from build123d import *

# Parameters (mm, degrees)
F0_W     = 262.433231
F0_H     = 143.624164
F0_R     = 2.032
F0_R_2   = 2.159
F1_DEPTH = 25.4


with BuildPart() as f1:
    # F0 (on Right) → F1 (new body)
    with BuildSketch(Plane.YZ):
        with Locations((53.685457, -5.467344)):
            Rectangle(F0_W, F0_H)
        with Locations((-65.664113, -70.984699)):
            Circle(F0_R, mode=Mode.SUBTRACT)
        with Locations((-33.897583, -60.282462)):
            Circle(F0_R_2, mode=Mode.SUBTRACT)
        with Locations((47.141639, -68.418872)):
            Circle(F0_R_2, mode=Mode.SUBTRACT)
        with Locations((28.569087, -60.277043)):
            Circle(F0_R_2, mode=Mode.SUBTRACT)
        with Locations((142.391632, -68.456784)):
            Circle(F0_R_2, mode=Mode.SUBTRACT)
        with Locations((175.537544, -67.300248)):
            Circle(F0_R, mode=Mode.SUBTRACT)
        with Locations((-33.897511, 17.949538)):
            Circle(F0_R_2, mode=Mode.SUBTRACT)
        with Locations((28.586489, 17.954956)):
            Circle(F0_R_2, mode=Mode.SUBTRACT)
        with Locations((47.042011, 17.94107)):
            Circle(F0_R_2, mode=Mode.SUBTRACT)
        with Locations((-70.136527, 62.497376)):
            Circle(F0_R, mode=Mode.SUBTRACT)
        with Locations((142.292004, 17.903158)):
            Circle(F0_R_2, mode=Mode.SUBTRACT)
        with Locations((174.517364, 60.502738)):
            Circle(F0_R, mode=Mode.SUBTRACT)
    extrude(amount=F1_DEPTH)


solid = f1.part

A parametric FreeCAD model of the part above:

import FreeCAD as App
import Part
import Sketcher
Q = App.Units.Quantity

doc = App.newDocument("Part")
body = doc.addObject("PartDesign::Body", "Body")

# Sketch on YZ plane
sketch1 = body.newObject("Sketcher::SketchObject", "Sketch")
sketch1.AttachmentSupport = (doc.getObject("YZ_Plane"), [""])
sketch1.MapMode = "FlatFace"
sketch1.addGeometry(Part.LineSegment(App.Vector(-77.5, 66.3, 0), App.Vector(-77.5, -77.3, 0)), False)
sketch1.addGeometry(Part.LineSegment(App.Vector(-77.5, -77.3, 0), App.Vector(184.9, -77.3, 0)), False)
sketch1.addGeometry(Part.LineSegment(App.Vector(184.9, -77.3, 0), App.Vector(184.9, 66.3, 0)), False)
sketch1.addGeometry(Part.LineSegment(App.Vector(184.9, 66.3, 0), App.Vector(-77.5, 66.3, 0)), False)
sketch1.addGeometry(Part.Circle(App.Vector(-65.7, -71, 0), App.Vector(0, 0, 1), 2), False)
sketch1.addGeometry(Part.Circle(App.Vector(-33.9, -60.3, 0), App.Vector(0, 0, 1), 2.2), False)
sketch1.addGeometry(Part.Circle(App.Vector(47.1, -68.4, 0), App.Vector(0, 0, 1), 2.2), False)
sketch1.addGeometry(Part.Circle(App.Vector(28.6, -60.3, 0), App.Vector(0, 0, 1), 2.2), False)
sketch1.addGeometry(Part.Circle(App.Vector(142.4, -68.5, 0), App.Vector(0, 0, 1), 2.2), False)
sketch1.addGeometry(Part.Circle(App.Vector(175.5, -67.3, 0), App.Vector(0, 0, 1), 2), False)
sketch1.addGeometry(Part.Circle(App.Vector(-33.9, 17.9, 0), App.Vector(0, 0, 1), 2.2), False)
sketch1.addGeometry(Part.Circle(App.Vector(28.6, 18, 0), App.Vector(0, 0, 1), 2.2), False)
sketch1.addGeometry(Part.Circle(App.Vector(47, 17.9, 0), App.Vector(0, 0, 1), 2.2), False)
sketch1.addGeometry(Part.Circle(App.Vector(-70.1, 62.5, 0), App.Vector(0, 0, 1), 2), False)
sketch1.addGeometry(Part.Circle(App.Vector(142.3, 17.9, 0), App.Vector(0, 0, 1), 2.2), False)
sketch1.addGeometry(Part.Circle(App.Vector(174.5, 60.5, 0), App.Vector(0, 0, 1), 2), False)
sketch1.addConstraint(Sketcher.Constraint("Coincident", 0, 2, 1, 1))
sketch1.addConstraint(Sketcher.Constraint("Coincident", 1, 2, 2, 1))
sketch1.addConstraint(Sketcher.Constraint("Coincident", 2, 2, 3, 1))
sketch1.addConstraint(Sketcher.Constraint("Coincident", 3, 2, 0, 1))
sketch1.addConstraint(Sketcher.Constraint("Vertical", 0))
sketch1.addConstraint(Sketcher.Constraint("Horizontal", 1))
sketch1.addConstraint(Sketcher.Constraint("Vertical", 2))
sketch1.addConstraint(Sketcher.Constraint("Horizontal", 3))
sketch1.addConstraint(Sketcher.Constraint("Equal", 5, 6))
sketch1.addConstraint(Sketcher.Constraint("Equal", 6, 7))
sketch1.addConstraint(Sketcher.Constraint("Equal", 7, 8))
sketch1.addConstraint(Sketcher.Constraint("Equal", 4, 9))
sketch1.addConstraint(Sketcher.Constraint("Equal", 8, 10))
sketch1.addConstraint(Sketcher.Constraint("Equal", 10, 11))
sketch1.addConstraint(Sketcher.Constraint("Equal", 11, 12))
sketch1.addConstraint(Sketcher.Constraint("Equal", 9, 13))
sketch1.addConstraint(Sketcher.Constraint("Equal", 12, 14))
sketch1.addConstraint(Sketcher.Constraint("Equal", 13, 15))
sketch1.addConstraint(Sketcher.Constraint("Diameter", 4, Q("0.16 in")))
sketch1.addConstraint(Sketcher.Constraint("Diameter", 5, Q("0.17 in")))
sketch1.addConstraint(Sketcher.Constraint("DistanceY", 5, 3, 10, 3, Q("3.08 in")))
sketch1.addConstraint(Sketcher.Constraint("DistanceX", 10, 3, 11, 3, Q("2.46 in")))
sketch1.addConstraint(Sketcher.Constraint("DistanceY", 7, 3, 11, 3, Q("3.08 in")))
sketch1.addConstraint(Sketcher.Constraint("DistanceY", 15, 3, 2, 2, Q("0.23 in")))
sketch1.addConstraint(Sketcher.Constraint("DistanceY", 4, 3, 13, 3, Q("5.2551998 in")))
sketch1.addConstraint(Sketcher.Constraint("DistanceX", 1, 1, 1, 2, Q("262.433231 mm")))
sketch1.addConstraint(Sketcher.Constraint("DistanceY", 4, 3, -1, 1, Q("70.984699 mm")))
sketch1.addConstraint(Sketcher.Constraint("DistanceX", 4, 3, 7, 3, Q("94.2332 mm")))
sketch1.addConstraint(Sketcher.Constraint("DistanceX", 4, 3, 10, 3, Q("31.766602 mm")))
sketch1.addConstraint(Sketcher.Constraint("DistanceY", 10, 3, 3, 2, Q("48.3952 mm")))
sketch1.addConstraint(Sketcher.Constraint("DistanceY", 0, 2, 0, 1, Q("143.624164 mm")))
sketch1.addConstraint(Sketcher.Constraint("DistanceX", -1, 1, 6, 3, Q("47.141639 mm")))
sketch1.addConstraint(Sketcher.Constraint("DistanceY", 6, 3, -1, 1, Q("68.418872 mm")))
sketch1.addConstraint(Sketcher.Constraint("DistanceX", -1, 1, 8, 3, Q("142.391632 mm")))
sketch1.addConstraint(Sketcher.Constraint("DistanceX", 10, 3, -1, 1, Q("33.897511 mm")))
sketch1.addConstraint(Sketcher.Constraint("DistanceY", -1, 1, 10, 3, Q("17.949538 mm")))
sketch1.addConstraint(Sketcher.Constraint("DistanceX", -1, 1, 12, 3, Q("47.042011 mm")))
sketch1.addConstraint(Sketcher.Constraint("DistanceY", -1, 1, 12, 3, Q("17.94107 mm")))
sketch1.addConstraint(Sketcher.Constraint("DistanceY", -1, 1, 14, 3, Q("17.903158 mm")))
sketch1.addConstraint(Sketcher.Constraint("DistanceX", 0, 2, -1, 1, Q("77.531159 mm")))
sketch1.addConstraint(Sketcher.Constraint("DistanceX", 4, 3, 5, 3, Q("31.76653 mm")))
sketch1.addConstraint(Sketcher.Constraint("DistanceY", 6, 3, 7, 3, Q("8.141829 mm")))
sketch1.addConstraint(Sketcher.Constraint("DistanceY", 8, 3, 7, 3, Q("8.179741 mm")))
sketch1.addConstraint(Sketcher.Constraint("DistanceY", 4, 3, 9, 3, Q("3.684451 mm")))
sketch1.addConstraint(Sketcher.Constraint("DistanceX", 13, 3, 12, 3, Q("117.178538 mm")))
sketch1.addConstraint(Sketcher.Constraint("DistanceX", 14, 3, 9, 3, Q("33.24554 mm")))
sketch1.addConstraint(Sketcher.Constraint("DistanceX", 14, 3, 15, 3, Q("32.22536 mm")))
sketch1.addConstraint(Sketcher.Constraint("DistanceX", 9, 3, 1, 2, Q("9.364529 mm")))
pad1 = body.newObject("PartDesign::Pad", "Pad")
pad1.Profile = sketch1
pad1.Length = Q("1 in")

doc.recompute()
